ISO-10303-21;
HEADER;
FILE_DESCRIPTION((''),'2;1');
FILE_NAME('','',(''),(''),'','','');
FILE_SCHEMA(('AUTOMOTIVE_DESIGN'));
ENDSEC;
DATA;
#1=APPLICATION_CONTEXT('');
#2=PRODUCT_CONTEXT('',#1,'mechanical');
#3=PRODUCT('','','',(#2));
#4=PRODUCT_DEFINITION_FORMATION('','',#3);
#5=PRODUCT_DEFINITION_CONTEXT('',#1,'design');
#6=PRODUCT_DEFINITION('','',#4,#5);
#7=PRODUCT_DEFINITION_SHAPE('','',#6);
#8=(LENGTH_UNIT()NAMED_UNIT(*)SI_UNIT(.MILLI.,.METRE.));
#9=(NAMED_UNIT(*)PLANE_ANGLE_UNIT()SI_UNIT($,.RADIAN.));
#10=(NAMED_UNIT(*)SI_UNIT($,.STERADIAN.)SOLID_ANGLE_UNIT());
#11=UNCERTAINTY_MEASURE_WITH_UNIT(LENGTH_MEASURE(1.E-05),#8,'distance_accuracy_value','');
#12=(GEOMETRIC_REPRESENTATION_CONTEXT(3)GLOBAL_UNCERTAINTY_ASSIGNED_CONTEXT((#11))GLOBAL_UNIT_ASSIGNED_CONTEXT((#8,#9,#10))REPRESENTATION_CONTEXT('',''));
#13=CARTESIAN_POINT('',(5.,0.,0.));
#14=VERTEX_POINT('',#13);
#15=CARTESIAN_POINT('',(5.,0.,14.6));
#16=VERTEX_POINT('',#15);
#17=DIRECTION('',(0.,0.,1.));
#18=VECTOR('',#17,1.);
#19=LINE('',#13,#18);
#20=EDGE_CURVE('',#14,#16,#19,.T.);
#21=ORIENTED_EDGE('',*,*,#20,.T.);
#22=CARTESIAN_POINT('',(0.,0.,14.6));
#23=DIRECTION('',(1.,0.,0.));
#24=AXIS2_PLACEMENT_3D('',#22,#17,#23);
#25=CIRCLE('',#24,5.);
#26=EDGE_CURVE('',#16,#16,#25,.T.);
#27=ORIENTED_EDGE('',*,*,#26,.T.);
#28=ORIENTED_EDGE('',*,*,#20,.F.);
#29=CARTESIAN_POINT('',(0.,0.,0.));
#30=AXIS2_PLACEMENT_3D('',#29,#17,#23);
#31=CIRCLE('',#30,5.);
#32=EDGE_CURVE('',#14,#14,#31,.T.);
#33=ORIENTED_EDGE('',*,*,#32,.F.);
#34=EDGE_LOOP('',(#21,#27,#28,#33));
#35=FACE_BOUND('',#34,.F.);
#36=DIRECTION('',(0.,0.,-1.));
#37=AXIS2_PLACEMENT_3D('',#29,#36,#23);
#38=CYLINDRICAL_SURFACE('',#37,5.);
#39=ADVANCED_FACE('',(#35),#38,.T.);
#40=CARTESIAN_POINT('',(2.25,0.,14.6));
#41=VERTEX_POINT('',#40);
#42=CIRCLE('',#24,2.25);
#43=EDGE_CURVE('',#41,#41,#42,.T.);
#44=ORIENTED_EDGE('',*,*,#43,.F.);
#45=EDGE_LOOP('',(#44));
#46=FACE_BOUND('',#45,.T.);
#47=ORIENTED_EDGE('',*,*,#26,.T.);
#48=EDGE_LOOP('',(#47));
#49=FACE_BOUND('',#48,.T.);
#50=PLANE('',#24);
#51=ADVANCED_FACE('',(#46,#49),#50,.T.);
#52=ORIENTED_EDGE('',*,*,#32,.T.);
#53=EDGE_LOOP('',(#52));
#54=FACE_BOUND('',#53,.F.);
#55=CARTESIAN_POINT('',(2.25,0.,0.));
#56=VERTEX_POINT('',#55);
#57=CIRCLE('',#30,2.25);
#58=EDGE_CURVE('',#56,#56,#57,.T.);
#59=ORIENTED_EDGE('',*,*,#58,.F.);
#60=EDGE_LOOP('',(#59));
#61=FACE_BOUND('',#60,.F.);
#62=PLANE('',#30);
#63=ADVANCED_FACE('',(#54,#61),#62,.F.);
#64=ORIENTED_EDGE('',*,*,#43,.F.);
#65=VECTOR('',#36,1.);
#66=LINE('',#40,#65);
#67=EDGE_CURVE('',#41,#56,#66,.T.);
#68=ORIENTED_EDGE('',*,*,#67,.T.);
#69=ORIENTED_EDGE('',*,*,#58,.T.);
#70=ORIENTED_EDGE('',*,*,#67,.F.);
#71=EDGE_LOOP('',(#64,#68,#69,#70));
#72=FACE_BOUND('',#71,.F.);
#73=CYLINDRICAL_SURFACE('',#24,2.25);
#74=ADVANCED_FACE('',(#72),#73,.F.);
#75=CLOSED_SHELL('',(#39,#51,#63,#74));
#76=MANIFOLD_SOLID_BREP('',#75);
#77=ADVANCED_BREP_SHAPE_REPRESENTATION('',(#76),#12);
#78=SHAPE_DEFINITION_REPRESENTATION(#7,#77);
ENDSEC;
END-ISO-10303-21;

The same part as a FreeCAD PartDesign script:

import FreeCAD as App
import Part
import Sketcher
from FreeCAD import Vector
Q = App.Units.Quantity

doc = App.newDocument("Part")
params = doc.addObject("Spreadsheet::Sheet", "Params")
for row, (alias, value) in enumerate([
    ("sketch1_diameter", "10 mm"),
    ("pad1_length", "14.6 mm"),
    ("sketch2_diameter", "4.5 mm"),
], start=1):
    params.set(f"A{row}", alias)
    params.set(f"B{row}", "=" + value)
    params.setAlias(f"B{row}", alias)

body = doc.addObject("PartDesign::Body", "Body")

sketch1 = doc.addObject("Sketcher::SketchObject", "Sketch")
body.addObject(sketch1)
sketch1.AttachmentSupport = (doc.XY_Plane, [""])
sketch1.MapMode = "FlatFace"
sketch1.addGeometry(Part.Circle(Vector(0, 0, 0), Vector(0, 0, 1), 5), False)
sketch1.addConstraint([
    Sketcher.Constraint("Coincident", 0, 3, -1, 1),
    Sketcher.Constraint("Diameter", 0, Q("10 mm")),
])
sketch1.setExpression("Constraints[1]", "Params.sketch1_diameter")
pad1 = doc.addObject("PartDesign::Pad", "Pad")
body.addObject(pad1)
pad1.Profile = sketch1
pad1.setExpression("Length", "Params.pad1_length")

sketch2 = doc.addObject("Sketcher::SketchObject", "Sketch001")
body.addObject(sketch2)
sketch2.AttachmentSupport = (doc.XY_Plane, [""])
sketch2.MapMode = "FlatFace"
sketch2.AttachmentOffset = App.Placement(Vector(0, 0, 14.6), App.Rotation())
sketch2.addGeometry(Part.Circle(Vector(0, 0, 0), Vector(0, 0, 1), 2.25), False)
sketch2.addConstraint([
    Sketcher.Constraint("Coincident", 0, 3, -1, 1),
    Sketcher.Constraint("Diameter", 0, Q("4.5 mm")),
])
sketch2.setExpression("Constraints[1]", "Params.sketch2_diameter")
pocket1 = doc.addObject("PartDesign::Pocket", "Pocket")
body.addObject(pocket1)
pocket1.Profile = sketch2
pocket1.Type = "ThroughAll"

doc.recompute()
